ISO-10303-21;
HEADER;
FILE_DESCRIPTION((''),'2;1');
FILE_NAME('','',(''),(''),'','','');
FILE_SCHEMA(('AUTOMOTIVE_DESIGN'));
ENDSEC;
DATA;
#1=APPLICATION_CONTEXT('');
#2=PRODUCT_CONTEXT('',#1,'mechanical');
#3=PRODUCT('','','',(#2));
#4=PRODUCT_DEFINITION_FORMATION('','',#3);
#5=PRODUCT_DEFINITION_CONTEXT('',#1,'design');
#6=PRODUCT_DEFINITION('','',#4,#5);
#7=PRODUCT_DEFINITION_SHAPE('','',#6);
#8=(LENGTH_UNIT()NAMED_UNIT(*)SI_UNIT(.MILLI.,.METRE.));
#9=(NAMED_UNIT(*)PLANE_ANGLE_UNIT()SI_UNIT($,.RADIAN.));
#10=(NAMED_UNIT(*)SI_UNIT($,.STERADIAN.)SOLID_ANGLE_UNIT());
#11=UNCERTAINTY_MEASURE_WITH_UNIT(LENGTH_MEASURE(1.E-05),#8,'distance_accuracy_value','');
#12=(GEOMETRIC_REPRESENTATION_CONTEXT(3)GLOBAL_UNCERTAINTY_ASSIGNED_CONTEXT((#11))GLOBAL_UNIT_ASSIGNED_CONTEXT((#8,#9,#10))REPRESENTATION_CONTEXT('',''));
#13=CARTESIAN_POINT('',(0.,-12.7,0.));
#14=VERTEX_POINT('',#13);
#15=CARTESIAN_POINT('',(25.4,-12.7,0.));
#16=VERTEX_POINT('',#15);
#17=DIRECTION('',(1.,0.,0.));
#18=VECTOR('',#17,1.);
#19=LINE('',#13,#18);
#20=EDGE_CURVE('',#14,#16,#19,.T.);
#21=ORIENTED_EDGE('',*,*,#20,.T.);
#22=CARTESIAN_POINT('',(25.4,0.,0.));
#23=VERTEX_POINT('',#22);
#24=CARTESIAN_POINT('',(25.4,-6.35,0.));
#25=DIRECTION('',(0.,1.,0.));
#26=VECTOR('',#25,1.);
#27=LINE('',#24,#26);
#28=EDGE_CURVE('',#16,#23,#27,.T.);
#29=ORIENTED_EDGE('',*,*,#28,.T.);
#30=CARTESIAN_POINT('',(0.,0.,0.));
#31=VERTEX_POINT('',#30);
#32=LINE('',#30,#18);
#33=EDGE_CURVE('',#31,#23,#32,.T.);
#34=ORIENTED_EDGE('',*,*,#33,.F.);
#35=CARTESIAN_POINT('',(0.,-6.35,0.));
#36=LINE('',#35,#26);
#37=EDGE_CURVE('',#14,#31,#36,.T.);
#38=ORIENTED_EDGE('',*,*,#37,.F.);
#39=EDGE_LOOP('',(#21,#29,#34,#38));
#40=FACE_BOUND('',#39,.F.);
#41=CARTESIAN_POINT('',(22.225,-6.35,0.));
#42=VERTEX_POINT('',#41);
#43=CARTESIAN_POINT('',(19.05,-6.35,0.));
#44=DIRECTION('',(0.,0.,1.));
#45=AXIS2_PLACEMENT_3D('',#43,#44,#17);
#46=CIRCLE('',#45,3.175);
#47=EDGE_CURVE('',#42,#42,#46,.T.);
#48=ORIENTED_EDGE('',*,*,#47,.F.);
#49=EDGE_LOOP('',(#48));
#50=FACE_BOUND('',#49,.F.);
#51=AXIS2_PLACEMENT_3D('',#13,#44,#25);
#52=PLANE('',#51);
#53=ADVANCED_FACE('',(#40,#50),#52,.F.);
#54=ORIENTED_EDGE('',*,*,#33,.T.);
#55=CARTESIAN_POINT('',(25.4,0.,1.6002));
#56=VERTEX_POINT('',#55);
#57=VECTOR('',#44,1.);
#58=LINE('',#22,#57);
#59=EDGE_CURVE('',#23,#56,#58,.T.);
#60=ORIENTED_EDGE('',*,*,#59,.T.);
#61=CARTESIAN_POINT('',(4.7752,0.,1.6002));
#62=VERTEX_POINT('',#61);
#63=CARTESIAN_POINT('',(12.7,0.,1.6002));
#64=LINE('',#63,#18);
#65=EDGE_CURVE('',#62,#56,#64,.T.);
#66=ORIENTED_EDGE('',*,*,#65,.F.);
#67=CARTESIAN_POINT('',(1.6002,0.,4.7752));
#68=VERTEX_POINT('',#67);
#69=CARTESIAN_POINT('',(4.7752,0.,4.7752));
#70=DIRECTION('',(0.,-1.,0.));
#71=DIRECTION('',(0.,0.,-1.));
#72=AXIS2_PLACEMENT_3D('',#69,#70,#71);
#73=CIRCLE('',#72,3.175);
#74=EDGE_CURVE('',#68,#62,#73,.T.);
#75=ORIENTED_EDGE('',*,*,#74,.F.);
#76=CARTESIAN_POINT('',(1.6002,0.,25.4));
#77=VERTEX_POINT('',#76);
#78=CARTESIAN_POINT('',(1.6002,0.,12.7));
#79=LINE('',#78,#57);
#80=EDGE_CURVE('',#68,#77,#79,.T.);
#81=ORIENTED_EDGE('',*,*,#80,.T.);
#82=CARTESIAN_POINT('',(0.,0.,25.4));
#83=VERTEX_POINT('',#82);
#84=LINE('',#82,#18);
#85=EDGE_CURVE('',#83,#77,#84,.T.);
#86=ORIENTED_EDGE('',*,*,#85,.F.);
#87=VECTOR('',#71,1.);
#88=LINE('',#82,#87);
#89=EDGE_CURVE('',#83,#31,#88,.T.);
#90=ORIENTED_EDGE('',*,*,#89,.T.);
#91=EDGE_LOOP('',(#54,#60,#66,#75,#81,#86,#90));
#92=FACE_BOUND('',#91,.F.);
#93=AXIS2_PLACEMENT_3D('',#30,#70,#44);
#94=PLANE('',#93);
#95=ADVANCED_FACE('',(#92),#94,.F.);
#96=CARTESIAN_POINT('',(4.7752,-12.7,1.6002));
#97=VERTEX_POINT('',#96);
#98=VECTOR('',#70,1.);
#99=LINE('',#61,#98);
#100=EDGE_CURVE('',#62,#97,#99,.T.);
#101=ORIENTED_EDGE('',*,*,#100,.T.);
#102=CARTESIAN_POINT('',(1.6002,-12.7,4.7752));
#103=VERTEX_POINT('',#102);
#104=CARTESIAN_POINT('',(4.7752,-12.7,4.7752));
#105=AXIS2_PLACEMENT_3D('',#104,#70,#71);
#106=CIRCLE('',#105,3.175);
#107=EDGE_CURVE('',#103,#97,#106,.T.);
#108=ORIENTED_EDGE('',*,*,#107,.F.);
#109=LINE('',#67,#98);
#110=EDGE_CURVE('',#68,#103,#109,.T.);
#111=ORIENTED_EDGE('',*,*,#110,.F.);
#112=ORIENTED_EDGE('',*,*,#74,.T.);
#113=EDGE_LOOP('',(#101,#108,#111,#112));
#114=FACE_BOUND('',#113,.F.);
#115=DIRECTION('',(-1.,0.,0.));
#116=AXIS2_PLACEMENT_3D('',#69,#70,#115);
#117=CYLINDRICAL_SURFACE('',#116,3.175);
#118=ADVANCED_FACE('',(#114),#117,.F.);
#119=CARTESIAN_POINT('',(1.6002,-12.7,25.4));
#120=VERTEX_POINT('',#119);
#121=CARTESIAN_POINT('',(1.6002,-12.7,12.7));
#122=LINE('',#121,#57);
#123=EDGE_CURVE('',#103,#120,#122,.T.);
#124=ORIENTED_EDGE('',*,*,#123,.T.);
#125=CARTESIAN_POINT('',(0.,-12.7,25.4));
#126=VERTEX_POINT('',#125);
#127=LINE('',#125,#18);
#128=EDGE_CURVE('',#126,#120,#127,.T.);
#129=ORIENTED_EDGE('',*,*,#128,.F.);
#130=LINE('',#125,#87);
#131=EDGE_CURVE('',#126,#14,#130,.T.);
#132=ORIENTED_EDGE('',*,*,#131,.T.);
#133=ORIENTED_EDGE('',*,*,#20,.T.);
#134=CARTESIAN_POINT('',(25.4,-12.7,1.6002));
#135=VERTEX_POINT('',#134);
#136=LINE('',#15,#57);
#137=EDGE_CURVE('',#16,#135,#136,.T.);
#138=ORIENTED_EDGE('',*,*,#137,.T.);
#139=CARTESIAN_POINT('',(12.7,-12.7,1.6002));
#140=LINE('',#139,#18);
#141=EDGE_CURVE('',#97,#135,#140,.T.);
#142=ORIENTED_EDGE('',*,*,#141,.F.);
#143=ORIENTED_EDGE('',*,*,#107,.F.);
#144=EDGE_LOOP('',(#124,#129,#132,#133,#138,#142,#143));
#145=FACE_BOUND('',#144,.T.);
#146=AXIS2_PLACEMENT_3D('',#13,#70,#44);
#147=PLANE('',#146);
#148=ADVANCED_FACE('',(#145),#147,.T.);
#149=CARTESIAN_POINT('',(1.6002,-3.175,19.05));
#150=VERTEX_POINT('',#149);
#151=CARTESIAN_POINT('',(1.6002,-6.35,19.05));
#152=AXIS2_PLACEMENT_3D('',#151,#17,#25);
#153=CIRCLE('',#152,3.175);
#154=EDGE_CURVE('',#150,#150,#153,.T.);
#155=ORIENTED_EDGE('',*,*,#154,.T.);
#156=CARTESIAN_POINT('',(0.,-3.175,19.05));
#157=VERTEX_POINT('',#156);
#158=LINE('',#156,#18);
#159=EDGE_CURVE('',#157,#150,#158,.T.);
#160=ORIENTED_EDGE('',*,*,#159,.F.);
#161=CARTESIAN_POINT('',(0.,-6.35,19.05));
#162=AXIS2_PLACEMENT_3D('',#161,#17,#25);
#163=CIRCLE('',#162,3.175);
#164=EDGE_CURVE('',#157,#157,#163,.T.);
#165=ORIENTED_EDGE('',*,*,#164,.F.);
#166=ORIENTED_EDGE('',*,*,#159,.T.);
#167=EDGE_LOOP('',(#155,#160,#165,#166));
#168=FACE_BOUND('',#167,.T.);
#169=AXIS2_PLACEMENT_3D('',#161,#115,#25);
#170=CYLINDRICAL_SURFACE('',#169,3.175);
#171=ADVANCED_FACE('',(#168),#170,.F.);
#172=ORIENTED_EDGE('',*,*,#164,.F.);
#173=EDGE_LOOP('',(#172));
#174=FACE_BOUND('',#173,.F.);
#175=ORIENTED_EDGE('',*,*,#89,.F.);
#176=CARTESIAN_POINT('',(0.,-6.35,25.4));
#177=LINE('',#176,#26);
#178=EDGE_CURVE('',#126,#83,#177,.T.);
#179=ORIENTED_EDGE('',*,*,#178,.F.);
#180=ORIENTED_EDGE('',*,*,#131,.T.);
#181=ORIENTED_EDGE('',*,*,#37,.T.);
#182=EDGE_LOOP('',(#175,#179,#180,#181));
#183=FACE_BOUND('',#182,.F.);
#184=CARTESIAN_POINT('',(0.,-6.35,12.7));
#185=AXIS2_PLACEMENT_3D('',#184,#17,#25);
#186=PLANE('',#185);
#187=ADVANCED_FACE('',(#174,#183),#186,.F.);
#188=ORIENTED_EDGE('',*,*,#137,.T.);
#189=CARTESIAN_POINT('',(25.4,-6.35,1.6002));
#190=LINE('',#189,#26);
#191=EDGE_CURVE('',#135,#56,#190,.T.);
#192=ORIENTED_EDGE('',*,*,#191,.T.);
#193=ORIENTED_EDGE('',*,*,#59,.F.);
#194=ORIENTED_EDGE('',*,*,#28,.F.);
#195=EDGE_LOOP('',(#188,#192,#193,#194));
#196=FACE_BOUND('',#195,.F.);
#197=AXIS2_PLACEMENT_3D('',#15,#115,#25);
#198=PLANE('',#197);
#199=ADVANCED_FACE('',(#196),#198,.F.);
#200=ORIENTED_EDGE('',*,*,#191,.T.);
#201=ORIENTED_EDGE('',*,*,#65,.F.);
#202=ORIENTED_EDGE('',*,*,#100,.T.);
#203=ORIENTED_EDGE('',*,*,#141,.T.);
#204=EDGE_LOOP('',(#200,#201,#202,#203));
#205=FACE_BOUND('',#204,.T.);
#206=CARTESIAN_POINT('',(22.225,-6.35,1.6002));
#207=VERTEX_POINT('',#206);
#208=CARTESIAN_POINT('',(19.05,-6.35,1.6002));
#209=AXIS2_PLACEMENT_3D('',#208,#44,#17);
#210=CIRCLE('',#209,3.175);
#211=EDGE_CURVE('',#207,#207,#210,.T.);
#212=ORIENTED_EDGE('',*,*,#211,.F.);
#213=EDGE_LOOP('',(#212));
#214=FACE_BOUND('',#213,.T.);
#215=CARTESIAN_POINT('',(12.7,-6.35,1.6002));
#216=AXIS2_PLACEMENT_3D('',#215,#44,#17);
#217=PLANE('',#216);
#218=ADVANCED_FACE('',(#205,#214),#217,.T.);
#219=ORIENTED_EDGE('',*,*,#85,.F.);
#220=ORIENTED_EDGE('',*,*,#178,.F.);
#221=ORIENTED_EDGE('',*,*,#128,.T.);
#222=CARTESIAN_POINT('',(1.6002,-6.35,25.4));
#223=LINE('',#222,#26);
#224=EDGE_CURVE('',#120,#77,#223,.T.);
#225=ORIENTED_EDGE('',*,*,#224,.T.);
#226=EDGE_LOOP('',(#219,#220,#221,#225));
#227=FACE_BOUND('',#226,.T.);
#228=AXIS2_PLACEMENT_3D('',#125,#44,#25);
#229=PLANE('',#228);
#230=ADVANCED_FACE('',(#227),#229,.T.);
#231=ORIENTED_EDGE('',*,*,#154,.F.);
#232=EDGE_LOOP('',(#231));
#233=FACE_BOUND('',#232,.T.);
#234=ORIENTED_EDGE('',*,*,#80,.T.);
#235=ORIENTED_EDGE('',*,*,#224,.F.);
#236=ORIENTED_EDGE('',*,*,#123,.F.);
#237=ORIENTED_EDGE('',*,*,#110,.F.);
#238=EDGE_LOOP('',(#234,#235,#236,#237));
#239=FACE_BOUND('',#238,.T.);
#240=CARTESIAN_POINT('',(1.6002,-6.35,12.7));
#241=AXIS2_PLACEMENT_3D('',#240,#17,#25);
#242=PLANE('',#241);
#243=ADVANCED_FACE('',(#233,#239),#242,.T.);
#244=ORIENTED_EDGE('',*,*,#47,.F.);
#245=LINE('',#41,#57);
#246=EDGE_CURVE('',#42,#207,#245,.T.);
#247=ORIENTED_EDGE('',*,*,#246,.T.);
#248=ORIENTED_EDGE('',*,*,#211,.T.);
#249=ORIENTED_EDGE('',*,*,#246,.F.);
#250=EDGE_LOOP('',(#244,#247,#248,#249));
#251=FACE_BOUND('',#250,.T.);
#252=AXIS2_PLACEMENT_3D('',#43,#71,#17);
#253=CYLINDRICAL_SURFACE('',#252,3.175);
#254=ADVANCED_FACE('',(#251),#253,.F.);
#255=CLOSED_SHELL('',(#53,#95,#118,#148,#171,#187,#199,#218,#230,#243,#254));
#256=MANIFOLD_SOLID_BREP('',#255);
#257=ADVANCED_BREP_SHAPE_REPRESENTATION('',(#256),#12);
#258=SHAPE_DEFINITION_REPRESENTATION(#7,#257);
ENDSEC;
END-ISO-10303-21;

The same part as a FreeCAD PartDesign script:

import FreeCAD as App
import Part
import Sketcher
Q = App.Units.Quantity


def edges_at(feature, points):
    """Names of the edges that pass closest to the given points."""
    edges = feature.Shape.Edges
    near = lambda p: min(range(len(edges)), key=lambda i: edges[i].distToShape(Part.Vertex(*p))[0])
    return sorted({f"Edge{near(p) + 1}" for p in points})


def add_polygon(sketch, points):
    """Adds a closed chain of lines whose ends are joined by coincident constraints."""
    first, n = sketch.GeometryCount, len(points)
    for a, b in zip(points, points[1:] + points[:1]):
        sketch.addGeometry(Part.LineSegment(App.Vector(*a, 0), App.Vector(*b, 0)), False)
    for i in range(n):
        sketch.addConstraint(Sketcher.Constraint("Coincident", first + i, 2, first + (i + 1) % n, 1))

doc = App.newDocument("Part")
body = doc.addObject("PartDesign::Body", "Body")

sketch1 = body.newObject("Sketcher::SketchObject", "Sketch")
sketch1.AttachmentSupport = (doc.getObject("YZ_Plane"), [""])
sketch1.MapMode = "FlatFace"
add_polygon(sketch1, [(-12.7, 25.4), (-12.7, 0), (0, 0), (0, 25.4)])
sketch1.addGeometry(Part.Circle(App.Vector(-6.3, 19.1, 0), App.Vector(0, 0, 1), 3.2), False)
sketch1.addConstraint(Sketcher.Constraint("Vertical", 0))
sketch1.addConstraint(Sketcher.Constraint("Horizontal", 1))
sketch1.addConstraint(Sketcher.Constraint("Vertical", 2))
sketch1.addConstraint(Sketcher.Constraint("Horizontal", 3))
sketch1.addConstraint(Sketcher.Constraint("Coincident", 1, 2, -1, 1))
sketch1.addConstraint(Sketcher.Constraint("Diameter", 4, Q("0.25 in")))
sketch1.addConstraint(Sketcher.Constraint("DistanceY", 0, 2, 0, 1, Q("1 in")))
sketch1.addConstraint(Sketcher.Constraint("DistanceX", 1, 1, 1, 2, Q("0.5 in")))
sketch1.addConstraint(Sketcher.Constraint("DistanceX", 4, 3, -1, 1, Q("0.25 in")))
sketch1.addConstraint(Sketcher.Constraint("DistanceY", -1, 1, 4, 3, Q("0.75 in")))
pad1 = body.newObject("PartDesign::Pad", "Pad")
pad1.Profile = sketch1
pad1.Length = Q("0.063 in")

sketch2 = body.newObject("Sketcher::SketchObject", "Sketch001")
sketch2.AttachmentSupport = (doc.getObject("XY_Plane"), [""])
sketch2.MapMode = "FlatFace"
add_polygon(sketch2, [(0, 0), (0, -12.7), (25.4, -12.7), (25.4, 0)])
sketch2.addGeometry(Part.Circle(App.Vector(19.1, -6.3, 0), App.Vector(0, 0, 1), 3.2), False)
sketch2.addConstraint(Sketcher.Constraint("Vertical", 0))
sketch2.addConstraint(Sketcher.Constraint("Horizontal", 1))
sketch2.addConstraint(Sketcher.Constraint("Vertical", 2))
sketch2.addConstraint(Sketcher.Constraint("Horizontal", 3))
sketch2.addConstraint(Sketcher.Constraint("Coincident", 3, 2, -1, 1))
sketch2.addConstraint(Sketcher.Constraint("Diameter", 4, Q("0.25 in")))
sketch2.addConstraint(Sketcher.Constraint("DistanceX", 1, 1, 1, 2, Q("1 in")))
sketch2.addConstraint(Sketcher.Constraint("DistanceY", 0, 2, 0, 1, Q("0.5 in")))
sketch2.addConstraint(Sketcher.Constraint("DistanceX", -1, 1, 4, 3, Q("0.75 in")))
sketch2.addConstraint(Sketcher.Constraint("DistanceY", 4, 3, -1, 1, Q("0.25 in")))
pad2 = body.newObject("PartDesign::Pad", "Pad001")
pad2.Profile = sketch2
pad2.Length = Q("0.063 in")
doc.recompute()

fillet = body.newObject("PartDesign::Fillet", "Fillet")
fillet.Base = (pad2, edges_at(pad2, [(1.6, -6.35, 1.6)]))
fillet.Radius = Q("0.125 in")

doc.recompute()
